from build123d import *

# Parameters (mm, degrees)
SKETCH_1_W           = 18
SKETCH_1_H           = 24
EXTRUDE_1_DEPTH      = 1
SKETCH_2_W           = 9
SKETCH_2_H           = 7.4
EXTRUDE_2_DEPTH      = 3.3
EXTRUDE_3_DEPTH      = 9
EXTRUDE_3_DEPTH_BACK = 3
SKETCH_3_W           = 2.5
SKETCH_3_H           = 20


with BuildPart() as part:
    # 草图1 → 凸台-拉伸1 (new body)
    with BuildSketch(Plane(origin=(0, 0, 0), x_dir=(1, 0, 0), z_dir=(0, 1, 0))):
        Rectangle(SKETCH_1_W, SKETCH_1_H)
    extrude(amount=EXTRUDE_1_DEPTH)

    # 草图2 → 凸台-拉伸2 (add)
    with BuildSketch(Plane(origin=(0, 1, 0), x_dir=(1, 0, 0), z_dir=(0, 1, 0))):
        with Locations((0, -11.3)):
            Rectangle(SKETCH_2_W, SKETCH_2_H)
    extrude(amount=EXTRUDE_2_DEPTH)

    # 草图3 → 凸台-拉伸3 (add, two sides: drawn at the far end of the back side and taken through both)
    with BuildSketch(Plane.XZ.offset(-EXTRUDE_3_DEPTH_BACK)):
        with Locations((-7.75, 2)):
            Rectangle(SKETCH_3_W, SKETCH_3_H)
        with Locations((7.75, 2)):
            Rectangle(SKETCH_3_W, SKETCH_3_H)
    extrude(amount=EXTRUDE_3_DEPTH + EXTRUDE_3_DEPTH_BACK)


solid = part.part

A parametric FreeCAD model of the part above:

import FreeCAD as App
import Part
import Sketcher

V = App.Vector

doc = App.newDocument("Part")
body = doc.addObject("PartDesign::Body", "Body")

sketch1 = body.newObject("Sketcher::SketchObject", "Sketch")
sketch1.AttachmentSupport = (doc.getObject("XZ_Plane"), [""])
sketch1.MapMode = "FlatFace"
sketch1.addGeometry([
    Part.LineSegment(V(-9, -12, 0), V(-9, 12, 0)),
    Part.LineSegment(V(-9, 12, 0), V(9, 12, 0)),
    Part.LineSegment(V(9, 12, 0), V(9, -12, 0)),
    Part.LineSegment(V(9, -12, 0), V(-9, -12, 0)),
], False)
sketch1.addConstraint([
    Sketcher.Constraint("Coincident", 0, 2, 1, 1),
    Sketcher.Constraint("Coincident", 1, 2, 2, 1),
    Sketcher.Constraint("Coincident", 2, 2, 3, 1),
    Sketcher.Constraint("Coincident", 3, 2, 0, 1),
    Sketcher.Constraint("Vertical", 0),
    Sketcher.Constraint("Horizontal", 1),
    Sketcher.Constraint("Vertical", 2),
    Sketcher.Constraint("Horizontal", 3),
    Sketcher.Constraint("Symmetric", 0, 2, 2, 2, -1, 1),
    Sketcher.Constraint("DistanceX", 1, 1, 1, 2, 18.0),
    Sketcher.Constraint("DistanceY", 0, 1, 0, 2, 24.0),
])
pad1 = body.newObject("PartDesign::Pad", "Pad")
pad1.Profile = sketch1
pad1.Length = 1
pad1.Reversed = True

sketch2 = body.newObject("Sketcher::SketchObject", "Sketch001")
sketch2.AttachmentSupport = (doc.getObject("XZ_Plane"), [""])
sketch2.MapMode = "FlatFace"
sketch2.AttachmentOffset = App.Placement(V(0, 0, -1), App.Rotation())
sketch2.addGeometry([
    Part.LineSegment(V(-4, 8, 0), V(-4, 15, 0)),
    Part.LineSegment(V(-4, 15, 0), V(4, 15, 0)),
    Part.LineSegment(V(4, 15, 0), V(4, 8, 0)),
    Part.LineSegment(V(4, 8, 0), V(-4, 8, 0)),
], False)
sketch2.addConstraint([
    Sketcher.Constraint("Coincident", 0, 2, 1, 1),
    Sketcher.Constraint("Coincident", 1, 2, 2, 1),
    Sketcher.Constraint("Coincident", 2, 2, 3, 1),
    Sketcher.Constraint("Coincident", 3, 2, 0, 1),
    Sketcher.Constraint("Vertical", 0),
    Sketcher.Constraint("Horizontal", 1),
    Sketcher.Constraint("Vertical", 2),
    Sketcher.Constraint("Horizontal", 3),
    Sketcher.Constraint("DistanceX", 1, 1, 1, 2, 9.0),
    Sketcher.Constraint("DistanceY", 0, 1, 0, 2, 7.4),
    Sketcher.Constraint("DistanceY", -1, 1, 0, 2, 15.0),
    Sketcher.Constraint("DistanceX", 0, 2, -1, 1, 4.5),
])
pad2 = body.newObject("PartDesign::Pad", "Pad001")
pad2.Profile = sketch2
pad2.Length = 3.3
pad2.Reversed = True

sketch3 = body.newObject("Sketcher::SketchObject", "Sketch002")
sketch3.AttachmentSupport = (doc.getObject("XZ_Plane"), [""])
sketch3.MapMode = "FlatFace"
sketch3.addGeometry([
    Part.LineSegment(V(-9, 12, 0), V(-9, -8, 0)),
    Part.LineSegment(V(-9, -8, 0), V(-6.5, -8, 0)),
    Part.LineSegment(V(-6.5, -8, 0), V(-6.5, 12, 0)),
    Part.LineSegment(V(-6.5, 12, 0), V(-9, 12, 0)),
    Part.LineSegment(V(6.5, 12, 0), V(6.5, -8, 0)),
    Part.LineSegment(V(6.5, -8, 0), V(9, -8, 0)),
    Part.LineSegment(V(9, -8, 0), V(9, 12, 0)),
    Part.LineSegment(V(9, 12, 0), V(6.5, 12, 0)),
], False)
sketch3.addConstraint([
    Sketcher.Constraint("Coincident", 0, 2, 1, 1),
    Sketcher.Constraint("Coincident", 1, 2, 2, 1),
    Sketcher.Constraint("Coincident", 2, 2, 3, 1),
    Sketcher.Constraint("Coincident", 3, 2, 0, 1),
    Sketcher.Constraint("Coincident", 4, 2, 5, 1),
    Sketcher.Constraint("Coincident", 5, 2, 6, 1),
    Sketcher.Constraint("Coincident", 6, 2, 7, 1),
    Sketcher.Constraint("Coincident", 7, 2, 4, 1),
    Sketcher.Constraint("Vertical", 0),
    Sketcher.Constraint("Horizontal", 1),
    Sketcher.Constraint("Vertical", 2),
    Sketcher.Constraint("Horizontal", 3),
    Sketcher.Constraint("Vertical", 4),
    Sketcher.Constraint("Horizontal", 5),
    Sketcher.Constraint("Vertical", 6),
    Sketcher.Constraint("Horizontal", 7),
    Sketcher.Constraint("Symmetric", 1, 2, 4, 2, -2),
    Sketcher.Constraint("Symmetric", 3, 2, 6, 2, -2),
    Sketcher.Constraint("DistanceY", 0, 2, 0, 1, 20.0),
    Sketcher.Constraint("DistanceX", 1, 1, 1, 2, 2.5),
    Sketcher.Constraint("DistanceX", 0, 2, -1, 1, 9.0),
    Sketcher.Constraint("DistanceY", 0, 2, -1, 1, 8.0),
])
pad3 = body.newObject("PartDesign::Pad", "Pad002")
pad3.Profile = sketch3
pad3.Type = "TwoLengths"
pad3.Length = 9
pad3.Length2 = 3

doc.recompute()
